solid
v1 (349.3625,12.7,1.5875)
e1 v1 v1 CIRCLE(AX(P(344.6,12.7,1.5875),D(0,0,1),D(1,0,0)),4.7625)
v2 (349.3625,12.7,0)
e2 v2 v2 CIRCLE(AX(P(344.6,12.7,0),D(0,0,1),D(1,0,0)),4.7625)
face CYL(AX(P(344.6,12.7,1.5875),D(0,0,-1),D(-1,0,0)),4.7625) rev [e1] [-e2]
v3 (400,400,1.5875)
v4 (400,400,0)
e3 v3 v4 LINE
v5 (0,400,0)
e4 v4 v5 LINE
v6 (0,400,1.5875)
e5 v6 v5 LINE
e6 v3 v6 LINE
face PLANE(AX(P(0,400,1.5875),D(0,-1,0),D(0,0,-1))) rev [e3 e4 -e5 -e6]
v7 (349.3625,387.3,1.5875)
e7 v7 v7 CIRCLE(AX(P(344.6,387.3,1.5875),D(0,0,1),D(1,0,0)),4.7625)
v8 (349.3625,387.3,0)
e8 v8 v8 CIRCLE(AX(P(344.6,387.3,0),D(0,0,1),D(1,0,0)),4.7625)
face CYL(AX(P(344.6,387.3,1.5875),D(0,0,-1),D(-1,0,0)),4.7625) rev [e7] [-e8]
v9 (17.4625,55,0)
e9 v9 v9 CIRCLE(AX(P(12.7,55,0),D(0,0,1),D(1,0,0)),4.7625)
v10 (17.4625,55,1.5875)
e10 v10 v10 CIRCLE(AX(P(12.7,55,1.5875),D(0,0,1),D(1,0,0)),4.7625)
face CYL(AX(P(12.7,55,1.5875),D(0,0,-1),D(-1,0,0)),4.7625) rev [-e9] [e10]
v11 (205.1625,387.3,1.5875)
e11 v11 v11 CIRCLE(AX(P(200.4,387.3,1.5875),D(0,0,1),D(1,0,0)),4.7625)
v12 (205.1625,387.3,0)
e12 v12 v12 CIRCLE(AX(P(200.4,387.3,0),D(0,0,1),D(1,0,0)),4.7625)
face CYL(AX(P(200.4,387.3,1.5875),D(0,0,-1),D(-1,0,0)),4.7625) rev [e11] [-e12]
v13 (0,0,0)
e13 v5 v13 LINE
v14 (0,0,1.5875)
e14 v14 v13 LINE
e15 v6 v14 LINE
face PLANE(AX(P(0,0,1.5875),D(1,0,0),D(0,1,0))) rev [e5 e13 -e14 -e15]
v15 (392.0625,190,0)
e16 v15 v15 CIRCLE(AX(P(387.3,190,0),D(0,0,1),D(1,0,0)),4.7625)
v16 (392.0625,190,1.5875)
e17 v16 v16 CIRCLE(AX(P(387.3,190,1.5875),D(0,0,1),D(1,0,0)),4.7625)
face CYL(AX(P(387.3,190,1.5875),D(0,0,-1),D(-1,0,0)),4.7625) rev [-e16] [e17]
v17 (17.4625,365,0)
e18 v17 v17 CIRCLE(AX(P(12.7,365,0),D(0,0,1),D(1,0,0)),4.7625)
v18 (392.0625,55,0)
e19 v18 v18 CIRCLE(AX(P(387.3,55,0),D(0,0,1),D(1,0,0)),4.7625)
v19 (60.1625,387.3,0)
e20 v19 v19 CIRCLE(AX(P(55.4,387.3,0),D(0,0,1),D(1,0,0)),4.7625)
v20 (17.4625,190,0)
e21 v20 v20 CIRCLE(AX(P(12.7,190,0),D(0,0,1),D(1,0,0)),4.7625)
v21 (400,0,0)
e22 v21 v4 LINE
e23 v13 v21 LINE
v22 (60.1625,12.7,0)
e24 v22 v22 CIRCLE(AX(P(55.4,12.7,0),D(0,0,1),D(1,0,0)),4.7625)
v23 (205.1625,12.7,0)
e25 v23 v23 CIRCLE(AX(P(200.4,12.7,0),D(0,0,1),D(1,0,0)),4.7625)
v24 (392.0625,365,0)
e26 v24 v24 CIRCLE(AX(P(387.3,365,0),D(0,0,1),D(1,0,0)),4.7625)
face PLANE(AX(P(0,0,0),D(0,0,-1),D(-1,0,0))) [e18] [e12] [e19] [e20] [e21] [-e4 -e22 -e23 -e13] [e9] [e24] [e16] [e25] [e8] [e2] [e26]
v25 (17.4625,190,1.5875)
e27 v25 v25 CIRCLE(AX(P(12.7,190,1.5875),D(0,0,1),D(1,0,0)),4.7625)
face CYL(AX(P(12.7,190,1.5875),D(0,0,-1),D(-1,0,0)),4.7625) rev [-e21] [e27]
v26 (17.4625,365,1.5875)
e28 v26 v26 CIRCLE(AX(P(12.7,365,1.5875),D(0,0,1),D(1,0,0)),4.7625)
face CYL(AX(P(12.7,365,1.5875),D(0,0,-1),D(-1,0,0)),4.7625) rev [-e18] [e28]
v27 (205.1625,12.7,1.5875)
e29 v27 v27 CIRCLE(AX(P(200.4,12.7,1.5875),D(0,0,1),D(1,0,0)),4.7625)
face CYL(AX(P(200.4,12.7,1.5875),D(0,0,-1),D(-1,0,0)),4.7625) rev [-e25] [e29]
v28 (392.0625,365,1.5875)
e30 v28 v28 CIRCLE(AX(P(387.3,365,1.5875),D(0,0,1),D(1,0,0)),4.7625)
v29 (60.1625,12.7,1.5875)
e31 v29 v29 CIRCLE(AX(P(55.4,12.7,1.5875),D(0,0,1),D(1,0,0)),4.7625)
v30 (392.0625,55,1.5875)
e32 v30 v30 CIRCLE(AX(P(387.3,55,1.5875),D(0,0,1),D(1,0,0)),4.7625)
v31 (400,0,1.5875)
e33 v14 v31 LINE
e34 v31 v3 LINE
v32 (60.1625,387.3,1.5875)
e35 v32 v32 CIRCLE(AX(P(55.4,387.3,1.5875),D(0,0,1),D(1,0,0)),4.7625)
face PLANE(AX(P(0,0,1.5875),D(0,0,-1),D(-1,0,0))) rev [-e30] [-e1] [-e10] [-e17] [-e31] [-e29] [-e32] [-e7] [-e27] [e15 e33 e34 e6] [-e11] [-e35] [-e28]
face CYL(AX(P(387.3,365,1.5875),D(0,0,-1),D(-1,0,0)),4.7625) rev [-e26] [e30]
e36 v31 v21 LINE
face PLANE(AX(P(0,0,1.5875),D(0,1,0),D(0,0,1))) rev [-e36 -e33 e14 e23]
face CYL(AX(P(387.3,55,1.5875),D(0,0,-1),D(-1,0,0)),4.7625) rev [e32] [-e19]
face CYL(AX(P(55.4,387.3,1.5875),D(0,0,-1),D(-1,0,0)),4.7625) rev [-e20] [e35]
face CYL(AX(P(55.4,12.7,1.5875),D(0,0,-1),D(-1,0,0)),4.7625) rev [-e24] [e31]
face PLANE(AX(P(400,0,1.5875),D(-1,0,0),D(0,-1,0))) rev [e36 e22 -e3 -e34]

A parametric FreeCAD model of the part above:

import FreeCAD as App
import Part
import Sketcher
Q = App.Units.Quantity

doc = App.newDocument("Part")
body = doc.addObject("PartDesign::Body", "Body")

sketch1 = body.newObject("Sketcher::SketchObject", "Sketch")
sketch1.AttachmentSupport = (doc.getObject("XY_Plane"), [""])
sketch1.MapMode = "FlatFace"
sketch1.addGeometry(Part.LineSegment(App.Vector(0, 400, 0), App.Vector(0, 0, 0)), False)
sketch1.addGeometry(Part.LineSegment(App.Vector(0, 0, 0), App.Vector(400, 0, 0)), False)
sketch1.addGeometry(Part.LineSegment(App.Vector(400, 0, 0), App.Vector(400, 400, 0)), False)
sketch1.addGeometry(Part.LineSegment(App.Vector(400, 400, 0), App.Vector(0, 400, 0)), False)
sketch1.addGeometry(Part.Circle(App.Vector(55.4, 12.7, 0), App.Vector(0, 0, 1), 4.8), False)
sketch1.addGeometry(Part.Circle(App.Vector(12.7, 55, 0), App.Vector(0, 0, 1), 4.8), False)
sketch1.addGeometry(Part.Circle(App.Vector(12.7, 190, 0), App.Vector(0, 0, 1), 4.8), False)
sketch1.addGeometry(Part.Circle(App.Vector(200.4, 12.7, 0), App.Vector(0, 0, 1), 4.8), False)
sketch1.addGeometry(Part.Circle(App.Vector(344.6, 12.7, 0), App.Vector(0, 0, 1), 4.8), False)
sketch1.addGeometry(Part.Circle(App.Vector(387.3, 55, 0), App.Vector(0, 0, 1), 4.8), False)
sketch1.addGeometry(Part.Circle(App.Vector(387.3, 190, 0), App.Vector(0, 0, 1), 4.8), False)
sketch1.addGeometry(Part.Circle(App.Vector(12.7, 365, 0), App.Vector(0, 0, 1), 4.8), False)
sketch1.addGeometry(Part.Circle(App.Vector(55.4, 387.3, 0), App.Vector(0, 0, 1), 4.8), False)
sketch1.addGeometry(Part.Circle(App.Vector(200.4, 387.3, 0), App.Vector(0, 0, 1), 4.8), False)
sketch1.addGeometry(Part.Circle(App.Vector(387.3, 365, 0), App.Vector(0, 0, 1), 4.8), False)
sketch1.addGeometry(Part.Circle(App.Vector(344.6, 387.3, 0), App.Vector(0, 0, 1), 4.8), False)
sketch1.addConstraint(Sketcher.Constraint("Coincident", 0, 2, 1, 1))
sketch1.addConstraint(Sketcher.Constraint("Coincident", 1, 2, 2, 1))
sketch1.addConstraint(Sketcher.Constraint("Coincident", 2, 2, 3, 1))
sketch1.addConstraint(Sketcher.Constraint("Coincident", 3, 2, 0, 1))
sketch1.addConstraint(Sketcher.Constraint("Vertical", 0))
sketch1.addConstraint(Sketcher.Constraint("Horizontal", 1))
sketch1.addConstraint(Sketcher.Constraint("Vertical", 2))
sketch1.addConstraint(Sketcher.Constraint("Horizontal", 3))
sketch1.addConstraint(Sketcher.Constraint("Coincident", 0, 2, -1, 1))
sketch1.addConstraint(Sketcher.Constraint("Equal", 4, 5))
sketch1.addConstraint(Sketcher.Constraint("Equal", 5, 6))
sketch1.addConstraint(Sketcher.Constraint("Equal", 6, 7))
sketch1.addConstraint(Sketcher.Constraint("Equal", 7, 8))
sketch1.addConstraint(Sketcher.Constraint("Equal", 8, 9))
sketch1.addConstraint(Sketcher.Constraint("Equal", 9, 10))
sketch1.addConstraint(Sketcher.Constraint("Equal", 10, 11))
sketch1.addConstraint(Sketcher.Constraint("Equal", 11, 12))
sketch1.addConstraint(Sketcher.Constraint("Equal", 12, 13))
sketch1.addConstraint(Sketcher.Constraint("Equal", 13, 14))
sketch1.addConstraint(Sketcher.Constraint("Equal", 14, 15))
sketch1.addConstraint(Sketcher.Constraint("Horizontal", 4, 3, 7, 3))
sketch1.addConstraint(Sketcher.Constraint("Horizontal", 7, 3, 8, 3))
sketch1.addConstraint(Sketcher.Constraint("Horizontal", 5, 3, 9, 3))
sketch1.addConstraint(Sketcher.Constraint("Horizontal", 6, 3, 10, 3))
sketch1.addConstraint(Sketcher.Constraint("Horizontal", 12, 3, 13, 3))
sketch1.addConstraint(Sketcher.Constraint("Horizontal", 11, 3, 14, 3))
sketch1.addConstraint(Sketcher.Constraint("Horizontal", 13, 3, 15, 3))
sketch1.addConstraint(Sketcher.Constraint("Vertical", 5, 3, 6, 3))
sketch1.addConstraint(Sketcher.Constraint("Vertical", 9, 3, 10, 3))
sketch1.addConstraint(Sketcher.Constraint("Vertical", 6, 3, 11, 3))
sketch1.addConstraint(Sketcher.Constraint("Vertical", 4, 3, 12, 3))
sketch1.addConstraint(Sketcher.Constraint("Vertical", 7, 3, 13, 3))
sketch1.addConstraint(Sketcher.Constraint("Vertical", 10, 3, 14, 3))
sketch1.addConstraint(Sketcher.Constraint("Vertical", 8, 3, 15, 3))
sketch1.addConstraint(Sketcher.Constraint("Equal", 3, 0))
sketch1.addConstraint(Sketcher.Constraint("Diameter", 4, Q("0.375 in")))
sketch1.addConstraint(Sketcher.Constraint("DistanceY", -1, 1, 4, 3, Q("0.5 in")))
sketch1.addConstraint(Sketcher.Constraint("DistanceX", -1, 1, 5, 3, Q("0.5 in")))
sketch1.addConstraint(Sketcher.Constraint("DistanceX", 9, 3, 1, 2, Q("0.5 in")))
sketch1.addConstraint(Sketcher.Constraint("DistanceY", 15, 3, 2, 2, Q("0.5 in")))
sketch1.addConstraint(Sketcher.Constraint("DistanceX", 1, 1, 1, 2, 400.0))
sketch1.addConstraint(Sketcher.Constraint("DistanceX", -1, 1, 4, 3, 55.4))
sketch1.addConstraint(Sketcher.Constraint("DistanceY", -1, 1, 5, 3, 55.0))
sketch1.addConstraint(Sketcher.Constraint("DistanceY", -1, 1, 6, 3, 190.0))
sketch1.addConstraint(Sketcher.Constraint("DistanceX", -1, 1, 7, 3, 200.4))
sketch1.addConstraint(Sketcher.Constraint("DistanceX", -1, 1, 8, 3, 344.6))
sketch1.addConstraint(Sketcher.Constraint("DistanceY", -1, 1, 11, 3, 365.0))
pad1 = body.newObject("PartDesign::Pad", "Pad")
pad1.Profile = sketch1
pad1.Length = Q("0.0625 in")

doc.recompute()
